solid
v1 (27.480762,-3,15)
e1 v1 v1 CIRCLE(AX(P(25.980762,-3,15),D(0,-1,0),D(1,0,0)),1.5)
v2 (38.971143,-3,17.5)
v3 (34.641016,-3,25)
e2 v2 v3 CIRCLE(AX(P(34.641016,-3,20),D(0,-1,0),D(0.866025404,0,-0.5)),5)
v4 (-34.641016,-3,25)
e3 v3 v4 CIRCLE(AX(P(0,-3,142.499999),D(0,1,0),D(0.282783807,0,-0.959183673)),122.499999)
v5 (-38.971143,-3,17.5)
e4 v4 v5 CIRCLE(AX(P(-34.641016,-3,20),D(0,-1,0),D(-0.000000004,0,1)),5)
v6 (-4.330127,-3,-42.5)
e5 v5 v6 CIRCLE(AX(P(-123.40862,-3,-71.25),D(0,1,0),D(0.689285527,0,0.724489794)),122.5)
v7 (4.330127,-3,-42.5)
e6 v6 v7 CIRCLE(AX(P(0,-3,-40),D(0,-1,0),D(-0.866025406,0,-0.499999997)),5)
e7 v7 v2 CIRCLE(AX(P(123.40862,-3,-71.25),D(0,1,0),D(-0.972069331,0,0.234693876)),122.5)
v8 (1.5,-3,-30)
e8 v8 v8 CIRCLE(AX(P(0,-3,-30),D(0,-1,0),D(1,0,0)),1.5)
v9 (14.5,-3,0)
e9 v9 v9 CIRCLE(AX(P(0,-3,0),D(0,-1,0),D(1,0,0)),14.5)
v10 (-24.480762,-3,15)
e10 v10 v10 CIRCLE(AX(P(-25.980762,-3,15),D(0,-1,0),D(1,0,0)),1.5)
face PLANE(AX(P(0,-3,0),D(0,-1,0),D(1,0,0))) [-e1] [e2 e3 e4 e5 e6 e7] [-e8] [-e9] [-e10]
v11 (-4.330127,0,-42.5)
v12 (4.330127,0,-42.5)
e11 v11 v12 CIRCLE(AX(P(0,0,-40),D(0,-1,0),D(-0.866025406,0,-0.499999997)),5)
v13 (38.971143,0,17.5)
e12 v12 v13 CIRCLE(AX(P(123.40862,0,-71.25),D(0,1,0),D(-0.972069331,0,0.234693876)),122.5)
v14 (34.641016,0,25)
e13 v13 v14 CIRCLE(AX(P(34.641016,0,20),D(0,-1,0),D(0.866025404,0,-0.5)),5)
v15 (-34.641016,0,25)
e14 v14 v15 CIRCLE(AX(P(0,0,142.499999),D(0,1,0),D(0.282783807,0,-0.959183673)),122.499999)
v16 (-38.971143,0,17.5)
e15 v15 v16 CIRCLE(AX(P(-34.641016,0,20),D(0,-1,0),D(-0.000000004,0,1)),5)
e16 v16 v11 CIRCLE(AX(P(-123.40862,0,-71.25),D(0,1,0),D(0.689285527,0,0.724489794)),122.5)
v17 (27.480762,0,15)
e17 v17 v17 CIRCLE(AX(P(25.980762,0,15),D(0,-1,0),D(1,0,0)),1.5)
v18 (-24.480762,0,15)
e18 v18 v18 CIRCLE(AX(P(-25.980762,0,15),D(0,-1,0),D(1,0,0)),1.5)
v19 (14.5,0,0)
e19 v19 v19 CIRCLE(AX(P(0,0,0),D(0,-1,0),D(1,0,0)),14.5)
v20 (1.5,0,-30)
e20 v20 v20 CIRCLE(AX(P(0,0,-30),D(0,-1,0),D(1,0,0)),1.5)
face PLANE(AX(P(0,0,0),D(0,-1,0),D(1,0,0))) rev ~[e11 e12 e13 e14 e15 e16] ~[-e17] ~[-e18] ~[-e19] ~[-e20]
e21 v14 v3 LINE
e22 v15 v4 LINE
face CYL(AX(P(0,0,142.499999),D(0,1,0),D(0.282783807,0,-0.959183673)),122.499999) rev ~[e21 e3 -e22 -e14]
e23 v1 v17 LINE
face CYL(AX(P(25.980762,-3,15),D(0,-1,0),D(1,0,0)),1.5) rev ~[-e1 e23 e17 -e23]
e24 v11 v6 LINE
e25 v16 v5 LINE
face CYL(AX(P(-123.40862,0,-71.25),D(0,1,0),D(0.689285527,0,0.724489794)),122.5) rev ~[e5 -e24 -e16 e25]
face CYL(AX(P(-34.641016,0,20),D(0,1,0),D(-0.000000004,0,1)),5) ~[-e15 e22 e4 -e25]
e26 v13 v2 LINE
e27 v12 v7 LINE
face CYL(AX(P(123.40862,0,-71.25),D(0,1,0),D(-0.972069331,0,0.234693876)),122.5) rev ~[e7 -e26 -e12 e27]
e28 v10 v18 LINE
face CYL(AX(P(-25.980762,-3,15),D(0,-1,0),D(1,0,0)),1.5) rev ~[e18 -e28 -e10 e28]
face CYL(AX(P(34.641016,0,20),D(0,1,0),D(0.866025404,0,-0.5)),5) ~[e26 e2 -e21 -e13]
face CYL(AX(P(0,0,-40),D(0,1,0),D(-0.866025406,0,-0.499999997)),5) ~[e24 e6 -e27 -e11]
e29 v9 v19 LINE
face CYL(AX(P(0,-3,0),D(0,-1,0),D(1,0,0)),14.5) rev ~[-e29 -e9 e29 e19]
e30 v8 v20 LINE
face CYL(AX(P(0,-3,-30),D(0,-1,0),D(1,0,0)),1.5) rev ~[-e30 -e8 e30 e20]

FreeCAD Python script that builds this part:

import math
import FreeCAD as App
import Part
import Sketcher

V = App.Vector
Q = App.Units.Quantity

doc = App.newDocument("Part")
body = doc.addObject("PartDesign::Body", "Body")

# Sketch on XZ plane
sketch1 = body.newObject("Sketcher::SketchObject", "Sketch")
sketch1.AttachmentSupport = (doc.getObject("XZ_Plane"), [""])
sketch1.MapMode = "FlatFace"
sketch1.addGeometry(Part.ArcOfCircle(Part.Circle(V(-123.40862, -71.25, 0), V(0, 0, 1), 122.5), math.radians(13.573579), math.radians(46.426421)), False)
sketch1.addGeometry(Part.ArcOfCircle(Part.Circle(V(0, -40, 0), V(0, 0, 1), 5), math.radians(-150), math.radians(-30)), False)
sketch1.addGeometry(Part.ArcOfCircle(Part.Circle(V(123.40862, -71.25, 0), V(0, 0, 1), 122.5), math.radians(133.573579), math.radians(166.426421)), False)
sketch1.addGeometry(Part.ArcOfCircle(Part.Circle(V(34.641016, 20, 0), V(0, 0, 1), 5), math.radians(-30), math.radians(90)), False)
sketch1.addGeometry(Part.ArcOfCircle(Part.Circle(V(0, 142.499999, 0), V(0, 0, 1), 122.499999), math.radians(-106.426421), math.radians(-73.573579)), False)
sketch1.addGeometry(Part.ArcOfCircle(Part.Circle(V(-34.641016, 20, 0), V(0, 0, 1), 5), math.radians(90), math.radians(210)), False)
sketch1.addConstraint(Sketcher.Constraint("Coincident", 0, 1, 1, 1))
sketch1.addConstraint(Sketcher.Constraint("Coincident", 1, 2, 2, 2))
sketch1.addConstraint(Sketcher.Constraint("Coincident", 2, 1, 3, 1))
sketch1.addConstraint(Sketcher.Constraint("Coincident", 3, 2, 4, 2))
sketch1.addConstraint(Sketcher.Constraint("Coincident", 4, 1, 5, 1))
sketch1.addConstraint(Sketcher.Constraint("Coincident", 5, 2, 0, 2))
sketch1.addConstraint(Sketcher.Constraint("Equal", 0, 2))
sketch1.addConstraint(Sketcher.Constraint("Equal", 1, 3))
sketch1.addConstraint(Sketcher.Constraint("Equal", 2, 4))
sketch1.addConstraint(Sketcher.Constraint("Equal", 3, 5))
sketch1.addConstraint(Sketcher.Constraint("Symmetric", 0, 3, 2, 3, -2))
sketch1.addConstraint(Sketcher.Constraint("Symmetric", 3, 3, 5, 3, -2))
sketch1.addConstraint(Sketcher.Constraint("PointOnObject", 1, 3, -2))
sketch1.addConstraint(Sketcher.Constraint("PointOnObject", 4, 3, -2))
sketch1.addConstraint(Sketcher.Constraint("Vertical", 5, 3, 4, 1))
sketch1.addConstraint(Sketcher.Constraint("Radius", 1, Q("5 mm")))
sketch1.addConstraint(Sketcher.Constraint("Radius", 0, Q("122.5 mm")))
sketch1.addConstraint(Sketcher.Constraint("DistanceY", 1, 3, -1, 1, Q("40 mm")))
sketch1.addConstraint(Sketcher.Constraint("DistanceY", -1, 1, 3, 3, Q("20 mm")))
sketch1.addConstraint(Sketcher.Constraint("DistanceY", 1, 2, 2, 1, Q("60 mm")))
sketch1.addConstraint(Sketcher.Constraint("DistanceY", -1, 1, 4, 3, Q("142.499999 mm")))
sketch1.addConstraint(Sketcher.Constraint("DistanceY", 0, 1, -1, 1, Q("42.5 mm")))
pad1 = body.newObject("PartDesign::Pad", "Pad")
pad1.Profile = sketch1
pad1.Length = 3

# Sketch on XZ plane
sketch2 = body.newObject("Sketcher::SketchObject", "Sketch001")
sketch2.AttachmentSupport = (doc.getObject("XZ_Plane"), [""])
sketch2.MapMode = "FlatFace"
sketch2.AttachmentOffset = App.Placement(V(0, 0, 3), App.Rotation())
sketch2.addGeometry(Part.Circle(V(-25.980762, 15, 0), V(0, 0, 1), 1.5), False)
sketch2.addGeometry(Part.Circle(V(0, 0, 0), V(0, 0, 1), 14.5), False)
sketch2.addGeometry(Part.Circle(V(25.980762, 15, 0), V(0, 0, 1), 1.5), False)
sketch2.addGeometry(Part.Circle(V(0, -30, 0), V(0, 0, 1), 1.5), False)
sketch2.addConstraint(Sketcher.Constraint("Coincident", 1, 3, -1, 1))
sketch2.addConstraint(Sketcher.Constraint("Equal", 0, 2))
sketch2.addConstraint(Sketcher.Constraint("Equal", 2, 3))
sketch2.addConstraint(Sketcher.Constraint("Symmetric", 0, 3, 2, 3, -2))
sketch2.addConstraint(Sketcher.Constraint("PointOnObject", 3, 3, -2))
sketch2.addConstraint(Sketcher.Constraint("Diameter", 0, Q("3 mm")))
sketch2.addConstraint(Sketcher.Constraint("Diameter", 1, Q("29 mm")))
sketch2.addConstraint(Sketcher.Constraint("DistanceY", -1, 1, 0, 3, Q("15 mm")))
sketch2.addConstraint(Sketcher.Constraint("DistanceY", 3, 3, -1, 1, Q("30 mm")))
sketch2.addConstraint(Sketcher.Constraint("DistanceX", 0, 3, -1, 1, Q("25.980762 mm")))
pocket1 = body.newObject("PartDesign::Pocket", "Pocket")
pocket1.Profile = sketch2
pocket1.Type = "ThroughAll"

doc.recompute()
